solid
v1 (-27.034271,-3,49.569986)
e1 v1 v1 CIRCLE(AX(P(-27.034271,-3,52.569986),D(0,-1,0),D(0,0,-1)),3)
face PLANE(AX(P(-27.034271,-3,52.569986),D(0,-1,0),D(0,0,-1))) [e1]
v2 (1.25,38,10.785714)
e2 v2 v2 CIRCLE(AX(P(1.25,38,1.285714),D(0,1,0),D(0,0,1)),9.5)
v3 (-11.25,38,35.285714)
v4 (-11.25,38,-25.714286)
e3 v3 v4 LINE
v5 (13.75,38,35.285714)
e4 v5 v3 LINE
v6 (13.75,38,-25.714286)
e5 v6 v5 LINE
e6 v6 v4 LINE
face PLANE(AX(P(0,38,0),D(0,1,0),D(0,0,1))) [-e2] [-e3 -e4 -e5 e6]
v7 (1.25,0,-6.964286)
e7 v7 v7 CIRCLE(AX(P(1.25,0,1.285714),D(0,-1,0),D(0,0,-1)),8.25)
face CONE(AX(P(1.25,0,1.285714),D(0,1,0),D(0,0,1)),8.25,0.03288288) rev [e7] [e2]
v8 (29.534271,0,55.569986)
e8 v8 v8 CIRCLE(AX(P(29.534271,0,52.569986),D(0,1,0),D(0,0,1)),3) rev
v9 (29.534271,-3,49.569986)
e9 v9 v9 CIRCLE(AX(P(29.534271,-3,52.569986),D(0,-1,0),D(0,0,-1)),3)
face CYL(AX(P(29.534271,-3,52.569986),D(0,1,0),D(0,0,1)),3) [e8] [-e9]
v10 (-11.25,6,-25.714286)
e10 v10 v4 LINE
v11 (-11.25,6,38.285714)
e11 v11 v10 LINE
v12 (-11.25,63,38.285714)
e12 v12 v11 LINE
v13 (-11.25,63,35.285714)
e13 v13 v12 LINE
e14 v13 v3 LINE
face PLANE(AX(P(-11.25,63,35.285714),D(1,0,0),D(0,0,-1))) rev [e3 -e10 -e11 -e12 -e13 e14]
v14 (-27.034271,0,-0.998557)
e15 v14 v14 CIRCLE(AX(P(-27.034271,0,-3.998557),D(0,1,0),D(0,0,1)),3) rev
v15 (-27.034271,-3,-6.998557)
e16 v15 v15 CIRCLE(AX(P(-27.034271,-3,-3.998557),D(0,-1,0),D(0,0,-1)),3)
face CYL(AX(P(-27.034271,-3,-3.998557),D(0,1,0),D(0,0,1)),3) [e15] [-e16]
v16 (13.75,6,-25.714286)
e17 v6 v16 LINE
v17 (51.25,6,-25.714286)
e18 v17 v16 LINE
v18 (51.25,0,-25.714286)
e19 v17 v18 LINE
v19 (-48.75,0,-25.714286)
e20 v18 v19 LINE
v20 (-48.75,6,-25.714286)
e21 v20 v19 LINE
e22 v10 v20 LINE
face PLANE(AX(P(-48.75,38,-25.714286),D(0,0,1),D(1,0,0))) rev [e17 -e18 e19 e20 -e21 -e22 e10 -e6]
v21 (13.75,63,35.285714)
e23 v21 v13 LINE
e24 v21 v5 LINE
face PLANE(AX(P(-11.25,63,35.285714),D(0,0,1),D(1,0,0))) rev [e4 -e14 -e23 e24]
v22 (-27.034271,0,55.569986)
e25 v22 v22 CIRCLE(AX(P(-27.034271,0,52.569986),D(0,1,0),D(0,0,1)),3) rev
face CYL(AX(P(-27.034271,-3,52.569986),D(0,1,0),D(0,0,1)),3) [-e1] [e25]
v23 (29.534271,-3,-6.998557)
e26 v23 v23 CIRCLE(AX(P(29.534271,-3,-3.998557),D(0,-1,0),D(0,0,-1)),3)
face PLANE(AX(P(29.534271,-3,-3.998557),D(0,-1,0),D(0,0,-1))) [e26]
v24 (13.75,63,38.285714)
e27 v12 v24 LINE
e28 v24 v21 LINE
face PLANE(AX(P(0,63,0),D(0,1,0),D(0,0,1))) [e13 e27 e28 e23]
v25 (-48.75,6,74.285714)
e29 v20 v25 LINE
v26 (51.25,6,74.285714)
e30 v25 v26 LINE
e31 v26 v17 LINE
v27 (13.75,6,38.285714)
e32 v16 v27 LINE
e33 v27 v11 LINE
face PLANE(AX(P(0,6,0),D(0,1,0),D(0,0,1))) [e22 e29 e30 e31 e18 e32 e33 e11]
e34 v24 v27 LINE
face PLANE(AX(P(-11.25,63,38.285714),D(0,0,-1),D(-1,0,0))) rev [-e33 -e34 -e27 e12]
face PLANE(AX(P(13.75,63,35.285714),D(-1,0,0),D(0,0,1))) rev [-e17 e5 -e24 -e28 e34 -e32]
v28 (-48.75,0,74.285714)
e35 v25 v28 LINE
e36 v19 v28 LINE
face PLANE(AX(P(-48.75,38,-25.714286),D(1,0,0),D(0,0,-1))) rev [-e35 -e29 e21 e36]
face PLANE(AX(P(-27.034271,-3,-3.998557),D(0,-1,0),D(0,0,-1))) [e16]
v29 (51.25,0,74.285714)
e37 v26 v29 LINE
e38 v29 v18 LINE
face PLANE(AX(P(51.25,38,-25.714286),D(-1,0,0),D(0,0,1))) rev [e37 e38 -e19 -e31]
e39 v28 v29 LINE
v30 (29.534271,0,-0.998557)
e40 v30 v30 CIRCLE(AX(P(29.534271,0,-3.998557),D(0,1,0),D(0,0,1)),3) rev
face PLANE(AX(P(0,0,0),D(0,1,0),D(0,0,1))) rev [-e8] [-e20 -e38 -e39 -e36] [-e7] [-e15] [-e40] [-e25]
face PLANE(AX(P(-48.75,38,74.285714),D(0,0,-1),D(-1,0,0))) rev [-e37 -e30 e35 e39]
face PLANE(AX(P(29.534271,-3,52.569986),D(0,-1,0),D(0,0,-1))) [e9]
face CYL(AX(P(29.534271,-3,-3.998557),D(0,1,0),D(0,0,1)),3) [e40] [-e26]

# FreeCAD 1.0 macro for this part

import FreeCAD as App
import Part
import Sketcher
from FreeCAD import Vector
Q = App.Units.Quantity


def add_polygon(sketch, points):
    """Adds a closed chain of lines whose ends are joined by coincident constraints."""
    first, n = sketch.GeometryCount, len(points)
    for a, b in zip(points, points[1:] + points[:1]):
        sketch.addGeometry(Part.LineSegment(App.Vector(*a, 0), App.Vector(*b, 0)), False)
    for i in range(n):
        sketch.addConstraint(Sketcher.Constraint("Coincident", first + i, 2, first + (i + 1) % n, 1))

doc = App.newDocument("Part")
body = doc.addObject("PartDesign::Body", "Body")

sketch1 = body.newObject("Sketcher::SketchObject", "Sketch")
sketch1.AttachmentSupport = (doc.getObject("XZ_Plane"), [""])
sketch1.MapMode = "FlatFace"
add_polygon(sketch1, [(-49, -26), (-49, 74), (51, 74), (51, -26)])
sketch1.addConstraint([
    Sketcher.Constraint("Vertical", 0),
    Sketcher.Constraint("Horizontal", 1),
    Sketcher.Constraint("Vertical", 2),
    Sketcher.Constraint("Horizontal", 3),
    Sketcher.Constraint("Equal", 3, 0),
    Sketcher.Constraint("DistanceX", 1, 1, 1, 2, Q("100 mm")),
    Sketcher.Constraint("DistanceX", 0, 2, -1, 1, Q("48.75 mm")),
    Sketcher.Constraint("DistanceY", -1, 1, 0, 2, Q("74.285714 mm")),
])
pad1 = body.newObject("PartDesign::Pad", "Pad")
pad1.Profile = sketch1
pad1.Length = 38
pad1.Reversed = True

sketch2 = body.newObject("Sketcher::SketchObject", "Sketch001")
sketch2.AttachmentSupport = (doc.getObject("XZ_Plane"), [""])
sketch2.MapMode = "FlatFace"
sketch2.addGeometry([
    Part.Circle(Vector(-27, 52.6, 0), Vector(0, 0, 1), 3),
    Part.Circle(Vector(29.5, 52.6, 0), Vector(0, 0, 1), 3),
    Part.Circle(Vector(29.5, -4, 0), Vector(0, 0, 1), 3),
    Part.Circle(Vector(-27, -4, 0), Vector(0, 0, 1), 3),
], False)
sketch2.addConstraint([
    Sketcher.Constraint("Equal", 0, 1),
    Sketcher.Constraint("Equal", 1, 2),
    Sketcher.Constraint("Equal", 2, 3),
    Sketcher.Constraint("Horizontal", 0, 3, 1, 3),
    Sketcher.Constraint("Horizontal", 2, 3, 3, 3),
    Sketcher.Constraint("Vertical", 1, 3, 2, 3),
    Sketcher.Constraint("Vertical", 0, 3, 3, 3),
    Sketcher.Constraint("Diameter", 0, Q("6 mm")),
    Sketcher.Constraint("DistanceX", 0, 3, -1, 1, Q("27.034271 mm")),
    Sketcher.Constraint("DistanceX", -1, 1, 1, 3, Q("29.534271 mm")),
    Sketcher.Constraint("DistanceY", -1, 1, 0, 3, Q("52.569986 mm")),
    Sketcher.Constraint("DistanceY", 2, 3, -1, 1, Q("3.998557 mm")),
])
pad2 = body.newObject("PartDesign::Pad", "Pad001")
pad2.Profile = sketch2
pad2.Length = 3

sketch3 = body.newObject("Sketcher::SketchObject", "Sketch002")
sketch3.AttachmentSupport = (doc.getObject("XZ_Plane"), [""])
sketch3.MapMode = "FlatFace"
sketch3.addGeometry(Part.Circle(Vector(1, 1, 0), Vector(0, 0, 1), 8), False)
sketch3.addConstraint([
    Sketcher.Constraint("Diameter", 0, Q("16.5 mm")),
    Sketcher.Constraint("DistanceX", -1, 1, 0, 3, Q("1.25 mm")),
    Sketcher.Constraint("DistanceY", -1, 1, 0, 3, Q("1.285714 mm")),
])

sketch4 = body.newObject("Sketcher::SketchObject", "Sketch003")
sketch4.AttachmentSupport = (doc.getObject("XZ_Plane"), [""])
sketch4.MapMode = "FlatFace"
sketch4.AttachmentOffset = App.Placement(Vector(0, 0, -38), App.Rotation())
sketch4.addGeometry(Part.Circle(Vector(1, 1, 0), Vector(0, 0, 1), 10), False)
sketch4.addConstraint([
    Sketcher.Constraint("Diameter", 0, Q("19 mm")),
    Sketcher.Constraint("DistanceX", -1, 1, 0, 3, Q("1.25 mm")),
    Sketcher.Constraint("DistanceY", -1, 1, 0, 3, Q("1.285714 mm")),
])

subtractiveloft = body.newObject("PartDesign::SubtractiveLoft", "SubtractiveLoft")
subtractiveloft.Profile = sketch3
subtractiveloft.Sections = [sketch4]

sketch5 = body.newObject("Sketcher::SketchObject", "Sketch004")
sketch5.AttachmentSupport = (doc.getObject("XZ_Plane"), [""])
sketch5.MapMode = "FlatFace"
sketch5.AttachmentOffset = App.Placement(Vector(0, 0, -38), App.Rotation())
add_polygon(sketch5, [(-11.2, 35.3), (-11.2, 38.3), (13.8, 38.3), (13.8, 35.3)])
sketch5.addConstraint([
    Sketcher.Constraint("Vertical", 0),
    Sketcher.Constraint("Horizontal", 1),
    Sketcher.Constraint("Vertical", 2),
    Sketcher.Constraint("Horizontal", 3),
    Sketcher.Constraint("DistanceX", 1, 1, 1, 2, Q("25 mm")),
    Sketcher.Constraint("DistanceY", 0, 1, 0, 2, Q("3 mm")),
    Sketcher.Constraint("DistanceX", 0, 2, -1, 1, Q("11.25 mm")),
    Sketcher.Constraint("DistanceY", -1, 1, 0, 2, Q("38.285714 mm")),
])
pad3 = body.newObject("PartDesign::Pad", "Pad002")
pad3.Profile = sketch5
pad3.Length = 25
pad3.Reversed = True

sketch6 = body.newObject("Sketcher::SketchObject", "Sketch005")
sketch6.AttachmentSupport = (doc.getObject("XZ_Plane"), [""])
sketch6.MapMode = "FlatFace"
sketch6.AttachmentOffset = App.Placement(Vector(0, 0, -38), App.Rotation())
add_polygon(sketch6, [(-11.2, -27.8), (-49.8, -27.8), (-49.8, 78.7), (-21.6, 78.7), (-21.6, 84), (26.2, 84), (26.2, 79.3), (53.4, 79.3), (53.4, -28.6), (13.8, -28.6), (13.8, 38.3), (-11.2, 38.3)])
sketch6.addConstraint([
    Sketcher.Constraint("Horizontal", 0),
    Sketcher.Constraint("Vertical", 1),
    Sketcher.Constraint("Horizontal", 2),
    Sketcher.Constraint("Vertical", 3),
    Sketcher.Constraint("Horizontal", 4),
    Sketcher.Constraint("Vertical", 5),
    Sketcher.Constraint("Horizontal", 6),
    Sketcher.Constraint("Vertical", 7),
    Sketcher.Constraint("Horizontal", 8),
    Sketcher.Constraint("Vertical", 9),
    Sketcher.Constraint("Horizontal", 10),
    Sketcher.Constraint("Vertical", 11),
    Sketcher.Constraint("DistanceX", 10, 2, 10, 1, Q("25 mm")),
    Sketcher.Constraint("DistanceX", -1, 1, 8, 2, Q("13.75 mm")),
    Sketcher.Constraint("DistanceX", 0, 2, 0, 1, Q("38.549741 mm")),
    Sketcher.Constraint("DistanceX", 2, 1, 2, 2, Q("28.19947 mm")),
    Sketcher.Constraint("DistanceY", 5, 2, 5, 1, Q("4.695891 mm")),
    Sketcher.Constraint("DistanceY", 7, 2, 2, 2, Q("107.295101 mm")),
    Sketcher.Constraint("DistanceX", 4, 1, 4, 2, Q("47.785138 mm")),
    Sketcher.Constraint("DistanceX", 6, 1, 6, 2, Q("27.222047 mm")),
    Sketcher.Constraint("DistanceY", 1, 1, 1, 2, Q("106.489884 mm")),
    Sketcher.Constraint("DistanceY", 3, 1, 3, 2, Q("5.299803 mm")),
    Sketcher.Constraint("DistanceY", 9, 1, 9, 2, Q("66.842334 mm")),
    Sketcher.Constraint("DistanceY", -1, 1, 1, 2, Q("78.738481 mm")),
])
pocket1 = body.newObject("PartDesign::Pocket", "Pocket")
pocket1.Profile = sketch6
pocket1.Length = 32
pocket1.Reversed = True

doc.recompute()
